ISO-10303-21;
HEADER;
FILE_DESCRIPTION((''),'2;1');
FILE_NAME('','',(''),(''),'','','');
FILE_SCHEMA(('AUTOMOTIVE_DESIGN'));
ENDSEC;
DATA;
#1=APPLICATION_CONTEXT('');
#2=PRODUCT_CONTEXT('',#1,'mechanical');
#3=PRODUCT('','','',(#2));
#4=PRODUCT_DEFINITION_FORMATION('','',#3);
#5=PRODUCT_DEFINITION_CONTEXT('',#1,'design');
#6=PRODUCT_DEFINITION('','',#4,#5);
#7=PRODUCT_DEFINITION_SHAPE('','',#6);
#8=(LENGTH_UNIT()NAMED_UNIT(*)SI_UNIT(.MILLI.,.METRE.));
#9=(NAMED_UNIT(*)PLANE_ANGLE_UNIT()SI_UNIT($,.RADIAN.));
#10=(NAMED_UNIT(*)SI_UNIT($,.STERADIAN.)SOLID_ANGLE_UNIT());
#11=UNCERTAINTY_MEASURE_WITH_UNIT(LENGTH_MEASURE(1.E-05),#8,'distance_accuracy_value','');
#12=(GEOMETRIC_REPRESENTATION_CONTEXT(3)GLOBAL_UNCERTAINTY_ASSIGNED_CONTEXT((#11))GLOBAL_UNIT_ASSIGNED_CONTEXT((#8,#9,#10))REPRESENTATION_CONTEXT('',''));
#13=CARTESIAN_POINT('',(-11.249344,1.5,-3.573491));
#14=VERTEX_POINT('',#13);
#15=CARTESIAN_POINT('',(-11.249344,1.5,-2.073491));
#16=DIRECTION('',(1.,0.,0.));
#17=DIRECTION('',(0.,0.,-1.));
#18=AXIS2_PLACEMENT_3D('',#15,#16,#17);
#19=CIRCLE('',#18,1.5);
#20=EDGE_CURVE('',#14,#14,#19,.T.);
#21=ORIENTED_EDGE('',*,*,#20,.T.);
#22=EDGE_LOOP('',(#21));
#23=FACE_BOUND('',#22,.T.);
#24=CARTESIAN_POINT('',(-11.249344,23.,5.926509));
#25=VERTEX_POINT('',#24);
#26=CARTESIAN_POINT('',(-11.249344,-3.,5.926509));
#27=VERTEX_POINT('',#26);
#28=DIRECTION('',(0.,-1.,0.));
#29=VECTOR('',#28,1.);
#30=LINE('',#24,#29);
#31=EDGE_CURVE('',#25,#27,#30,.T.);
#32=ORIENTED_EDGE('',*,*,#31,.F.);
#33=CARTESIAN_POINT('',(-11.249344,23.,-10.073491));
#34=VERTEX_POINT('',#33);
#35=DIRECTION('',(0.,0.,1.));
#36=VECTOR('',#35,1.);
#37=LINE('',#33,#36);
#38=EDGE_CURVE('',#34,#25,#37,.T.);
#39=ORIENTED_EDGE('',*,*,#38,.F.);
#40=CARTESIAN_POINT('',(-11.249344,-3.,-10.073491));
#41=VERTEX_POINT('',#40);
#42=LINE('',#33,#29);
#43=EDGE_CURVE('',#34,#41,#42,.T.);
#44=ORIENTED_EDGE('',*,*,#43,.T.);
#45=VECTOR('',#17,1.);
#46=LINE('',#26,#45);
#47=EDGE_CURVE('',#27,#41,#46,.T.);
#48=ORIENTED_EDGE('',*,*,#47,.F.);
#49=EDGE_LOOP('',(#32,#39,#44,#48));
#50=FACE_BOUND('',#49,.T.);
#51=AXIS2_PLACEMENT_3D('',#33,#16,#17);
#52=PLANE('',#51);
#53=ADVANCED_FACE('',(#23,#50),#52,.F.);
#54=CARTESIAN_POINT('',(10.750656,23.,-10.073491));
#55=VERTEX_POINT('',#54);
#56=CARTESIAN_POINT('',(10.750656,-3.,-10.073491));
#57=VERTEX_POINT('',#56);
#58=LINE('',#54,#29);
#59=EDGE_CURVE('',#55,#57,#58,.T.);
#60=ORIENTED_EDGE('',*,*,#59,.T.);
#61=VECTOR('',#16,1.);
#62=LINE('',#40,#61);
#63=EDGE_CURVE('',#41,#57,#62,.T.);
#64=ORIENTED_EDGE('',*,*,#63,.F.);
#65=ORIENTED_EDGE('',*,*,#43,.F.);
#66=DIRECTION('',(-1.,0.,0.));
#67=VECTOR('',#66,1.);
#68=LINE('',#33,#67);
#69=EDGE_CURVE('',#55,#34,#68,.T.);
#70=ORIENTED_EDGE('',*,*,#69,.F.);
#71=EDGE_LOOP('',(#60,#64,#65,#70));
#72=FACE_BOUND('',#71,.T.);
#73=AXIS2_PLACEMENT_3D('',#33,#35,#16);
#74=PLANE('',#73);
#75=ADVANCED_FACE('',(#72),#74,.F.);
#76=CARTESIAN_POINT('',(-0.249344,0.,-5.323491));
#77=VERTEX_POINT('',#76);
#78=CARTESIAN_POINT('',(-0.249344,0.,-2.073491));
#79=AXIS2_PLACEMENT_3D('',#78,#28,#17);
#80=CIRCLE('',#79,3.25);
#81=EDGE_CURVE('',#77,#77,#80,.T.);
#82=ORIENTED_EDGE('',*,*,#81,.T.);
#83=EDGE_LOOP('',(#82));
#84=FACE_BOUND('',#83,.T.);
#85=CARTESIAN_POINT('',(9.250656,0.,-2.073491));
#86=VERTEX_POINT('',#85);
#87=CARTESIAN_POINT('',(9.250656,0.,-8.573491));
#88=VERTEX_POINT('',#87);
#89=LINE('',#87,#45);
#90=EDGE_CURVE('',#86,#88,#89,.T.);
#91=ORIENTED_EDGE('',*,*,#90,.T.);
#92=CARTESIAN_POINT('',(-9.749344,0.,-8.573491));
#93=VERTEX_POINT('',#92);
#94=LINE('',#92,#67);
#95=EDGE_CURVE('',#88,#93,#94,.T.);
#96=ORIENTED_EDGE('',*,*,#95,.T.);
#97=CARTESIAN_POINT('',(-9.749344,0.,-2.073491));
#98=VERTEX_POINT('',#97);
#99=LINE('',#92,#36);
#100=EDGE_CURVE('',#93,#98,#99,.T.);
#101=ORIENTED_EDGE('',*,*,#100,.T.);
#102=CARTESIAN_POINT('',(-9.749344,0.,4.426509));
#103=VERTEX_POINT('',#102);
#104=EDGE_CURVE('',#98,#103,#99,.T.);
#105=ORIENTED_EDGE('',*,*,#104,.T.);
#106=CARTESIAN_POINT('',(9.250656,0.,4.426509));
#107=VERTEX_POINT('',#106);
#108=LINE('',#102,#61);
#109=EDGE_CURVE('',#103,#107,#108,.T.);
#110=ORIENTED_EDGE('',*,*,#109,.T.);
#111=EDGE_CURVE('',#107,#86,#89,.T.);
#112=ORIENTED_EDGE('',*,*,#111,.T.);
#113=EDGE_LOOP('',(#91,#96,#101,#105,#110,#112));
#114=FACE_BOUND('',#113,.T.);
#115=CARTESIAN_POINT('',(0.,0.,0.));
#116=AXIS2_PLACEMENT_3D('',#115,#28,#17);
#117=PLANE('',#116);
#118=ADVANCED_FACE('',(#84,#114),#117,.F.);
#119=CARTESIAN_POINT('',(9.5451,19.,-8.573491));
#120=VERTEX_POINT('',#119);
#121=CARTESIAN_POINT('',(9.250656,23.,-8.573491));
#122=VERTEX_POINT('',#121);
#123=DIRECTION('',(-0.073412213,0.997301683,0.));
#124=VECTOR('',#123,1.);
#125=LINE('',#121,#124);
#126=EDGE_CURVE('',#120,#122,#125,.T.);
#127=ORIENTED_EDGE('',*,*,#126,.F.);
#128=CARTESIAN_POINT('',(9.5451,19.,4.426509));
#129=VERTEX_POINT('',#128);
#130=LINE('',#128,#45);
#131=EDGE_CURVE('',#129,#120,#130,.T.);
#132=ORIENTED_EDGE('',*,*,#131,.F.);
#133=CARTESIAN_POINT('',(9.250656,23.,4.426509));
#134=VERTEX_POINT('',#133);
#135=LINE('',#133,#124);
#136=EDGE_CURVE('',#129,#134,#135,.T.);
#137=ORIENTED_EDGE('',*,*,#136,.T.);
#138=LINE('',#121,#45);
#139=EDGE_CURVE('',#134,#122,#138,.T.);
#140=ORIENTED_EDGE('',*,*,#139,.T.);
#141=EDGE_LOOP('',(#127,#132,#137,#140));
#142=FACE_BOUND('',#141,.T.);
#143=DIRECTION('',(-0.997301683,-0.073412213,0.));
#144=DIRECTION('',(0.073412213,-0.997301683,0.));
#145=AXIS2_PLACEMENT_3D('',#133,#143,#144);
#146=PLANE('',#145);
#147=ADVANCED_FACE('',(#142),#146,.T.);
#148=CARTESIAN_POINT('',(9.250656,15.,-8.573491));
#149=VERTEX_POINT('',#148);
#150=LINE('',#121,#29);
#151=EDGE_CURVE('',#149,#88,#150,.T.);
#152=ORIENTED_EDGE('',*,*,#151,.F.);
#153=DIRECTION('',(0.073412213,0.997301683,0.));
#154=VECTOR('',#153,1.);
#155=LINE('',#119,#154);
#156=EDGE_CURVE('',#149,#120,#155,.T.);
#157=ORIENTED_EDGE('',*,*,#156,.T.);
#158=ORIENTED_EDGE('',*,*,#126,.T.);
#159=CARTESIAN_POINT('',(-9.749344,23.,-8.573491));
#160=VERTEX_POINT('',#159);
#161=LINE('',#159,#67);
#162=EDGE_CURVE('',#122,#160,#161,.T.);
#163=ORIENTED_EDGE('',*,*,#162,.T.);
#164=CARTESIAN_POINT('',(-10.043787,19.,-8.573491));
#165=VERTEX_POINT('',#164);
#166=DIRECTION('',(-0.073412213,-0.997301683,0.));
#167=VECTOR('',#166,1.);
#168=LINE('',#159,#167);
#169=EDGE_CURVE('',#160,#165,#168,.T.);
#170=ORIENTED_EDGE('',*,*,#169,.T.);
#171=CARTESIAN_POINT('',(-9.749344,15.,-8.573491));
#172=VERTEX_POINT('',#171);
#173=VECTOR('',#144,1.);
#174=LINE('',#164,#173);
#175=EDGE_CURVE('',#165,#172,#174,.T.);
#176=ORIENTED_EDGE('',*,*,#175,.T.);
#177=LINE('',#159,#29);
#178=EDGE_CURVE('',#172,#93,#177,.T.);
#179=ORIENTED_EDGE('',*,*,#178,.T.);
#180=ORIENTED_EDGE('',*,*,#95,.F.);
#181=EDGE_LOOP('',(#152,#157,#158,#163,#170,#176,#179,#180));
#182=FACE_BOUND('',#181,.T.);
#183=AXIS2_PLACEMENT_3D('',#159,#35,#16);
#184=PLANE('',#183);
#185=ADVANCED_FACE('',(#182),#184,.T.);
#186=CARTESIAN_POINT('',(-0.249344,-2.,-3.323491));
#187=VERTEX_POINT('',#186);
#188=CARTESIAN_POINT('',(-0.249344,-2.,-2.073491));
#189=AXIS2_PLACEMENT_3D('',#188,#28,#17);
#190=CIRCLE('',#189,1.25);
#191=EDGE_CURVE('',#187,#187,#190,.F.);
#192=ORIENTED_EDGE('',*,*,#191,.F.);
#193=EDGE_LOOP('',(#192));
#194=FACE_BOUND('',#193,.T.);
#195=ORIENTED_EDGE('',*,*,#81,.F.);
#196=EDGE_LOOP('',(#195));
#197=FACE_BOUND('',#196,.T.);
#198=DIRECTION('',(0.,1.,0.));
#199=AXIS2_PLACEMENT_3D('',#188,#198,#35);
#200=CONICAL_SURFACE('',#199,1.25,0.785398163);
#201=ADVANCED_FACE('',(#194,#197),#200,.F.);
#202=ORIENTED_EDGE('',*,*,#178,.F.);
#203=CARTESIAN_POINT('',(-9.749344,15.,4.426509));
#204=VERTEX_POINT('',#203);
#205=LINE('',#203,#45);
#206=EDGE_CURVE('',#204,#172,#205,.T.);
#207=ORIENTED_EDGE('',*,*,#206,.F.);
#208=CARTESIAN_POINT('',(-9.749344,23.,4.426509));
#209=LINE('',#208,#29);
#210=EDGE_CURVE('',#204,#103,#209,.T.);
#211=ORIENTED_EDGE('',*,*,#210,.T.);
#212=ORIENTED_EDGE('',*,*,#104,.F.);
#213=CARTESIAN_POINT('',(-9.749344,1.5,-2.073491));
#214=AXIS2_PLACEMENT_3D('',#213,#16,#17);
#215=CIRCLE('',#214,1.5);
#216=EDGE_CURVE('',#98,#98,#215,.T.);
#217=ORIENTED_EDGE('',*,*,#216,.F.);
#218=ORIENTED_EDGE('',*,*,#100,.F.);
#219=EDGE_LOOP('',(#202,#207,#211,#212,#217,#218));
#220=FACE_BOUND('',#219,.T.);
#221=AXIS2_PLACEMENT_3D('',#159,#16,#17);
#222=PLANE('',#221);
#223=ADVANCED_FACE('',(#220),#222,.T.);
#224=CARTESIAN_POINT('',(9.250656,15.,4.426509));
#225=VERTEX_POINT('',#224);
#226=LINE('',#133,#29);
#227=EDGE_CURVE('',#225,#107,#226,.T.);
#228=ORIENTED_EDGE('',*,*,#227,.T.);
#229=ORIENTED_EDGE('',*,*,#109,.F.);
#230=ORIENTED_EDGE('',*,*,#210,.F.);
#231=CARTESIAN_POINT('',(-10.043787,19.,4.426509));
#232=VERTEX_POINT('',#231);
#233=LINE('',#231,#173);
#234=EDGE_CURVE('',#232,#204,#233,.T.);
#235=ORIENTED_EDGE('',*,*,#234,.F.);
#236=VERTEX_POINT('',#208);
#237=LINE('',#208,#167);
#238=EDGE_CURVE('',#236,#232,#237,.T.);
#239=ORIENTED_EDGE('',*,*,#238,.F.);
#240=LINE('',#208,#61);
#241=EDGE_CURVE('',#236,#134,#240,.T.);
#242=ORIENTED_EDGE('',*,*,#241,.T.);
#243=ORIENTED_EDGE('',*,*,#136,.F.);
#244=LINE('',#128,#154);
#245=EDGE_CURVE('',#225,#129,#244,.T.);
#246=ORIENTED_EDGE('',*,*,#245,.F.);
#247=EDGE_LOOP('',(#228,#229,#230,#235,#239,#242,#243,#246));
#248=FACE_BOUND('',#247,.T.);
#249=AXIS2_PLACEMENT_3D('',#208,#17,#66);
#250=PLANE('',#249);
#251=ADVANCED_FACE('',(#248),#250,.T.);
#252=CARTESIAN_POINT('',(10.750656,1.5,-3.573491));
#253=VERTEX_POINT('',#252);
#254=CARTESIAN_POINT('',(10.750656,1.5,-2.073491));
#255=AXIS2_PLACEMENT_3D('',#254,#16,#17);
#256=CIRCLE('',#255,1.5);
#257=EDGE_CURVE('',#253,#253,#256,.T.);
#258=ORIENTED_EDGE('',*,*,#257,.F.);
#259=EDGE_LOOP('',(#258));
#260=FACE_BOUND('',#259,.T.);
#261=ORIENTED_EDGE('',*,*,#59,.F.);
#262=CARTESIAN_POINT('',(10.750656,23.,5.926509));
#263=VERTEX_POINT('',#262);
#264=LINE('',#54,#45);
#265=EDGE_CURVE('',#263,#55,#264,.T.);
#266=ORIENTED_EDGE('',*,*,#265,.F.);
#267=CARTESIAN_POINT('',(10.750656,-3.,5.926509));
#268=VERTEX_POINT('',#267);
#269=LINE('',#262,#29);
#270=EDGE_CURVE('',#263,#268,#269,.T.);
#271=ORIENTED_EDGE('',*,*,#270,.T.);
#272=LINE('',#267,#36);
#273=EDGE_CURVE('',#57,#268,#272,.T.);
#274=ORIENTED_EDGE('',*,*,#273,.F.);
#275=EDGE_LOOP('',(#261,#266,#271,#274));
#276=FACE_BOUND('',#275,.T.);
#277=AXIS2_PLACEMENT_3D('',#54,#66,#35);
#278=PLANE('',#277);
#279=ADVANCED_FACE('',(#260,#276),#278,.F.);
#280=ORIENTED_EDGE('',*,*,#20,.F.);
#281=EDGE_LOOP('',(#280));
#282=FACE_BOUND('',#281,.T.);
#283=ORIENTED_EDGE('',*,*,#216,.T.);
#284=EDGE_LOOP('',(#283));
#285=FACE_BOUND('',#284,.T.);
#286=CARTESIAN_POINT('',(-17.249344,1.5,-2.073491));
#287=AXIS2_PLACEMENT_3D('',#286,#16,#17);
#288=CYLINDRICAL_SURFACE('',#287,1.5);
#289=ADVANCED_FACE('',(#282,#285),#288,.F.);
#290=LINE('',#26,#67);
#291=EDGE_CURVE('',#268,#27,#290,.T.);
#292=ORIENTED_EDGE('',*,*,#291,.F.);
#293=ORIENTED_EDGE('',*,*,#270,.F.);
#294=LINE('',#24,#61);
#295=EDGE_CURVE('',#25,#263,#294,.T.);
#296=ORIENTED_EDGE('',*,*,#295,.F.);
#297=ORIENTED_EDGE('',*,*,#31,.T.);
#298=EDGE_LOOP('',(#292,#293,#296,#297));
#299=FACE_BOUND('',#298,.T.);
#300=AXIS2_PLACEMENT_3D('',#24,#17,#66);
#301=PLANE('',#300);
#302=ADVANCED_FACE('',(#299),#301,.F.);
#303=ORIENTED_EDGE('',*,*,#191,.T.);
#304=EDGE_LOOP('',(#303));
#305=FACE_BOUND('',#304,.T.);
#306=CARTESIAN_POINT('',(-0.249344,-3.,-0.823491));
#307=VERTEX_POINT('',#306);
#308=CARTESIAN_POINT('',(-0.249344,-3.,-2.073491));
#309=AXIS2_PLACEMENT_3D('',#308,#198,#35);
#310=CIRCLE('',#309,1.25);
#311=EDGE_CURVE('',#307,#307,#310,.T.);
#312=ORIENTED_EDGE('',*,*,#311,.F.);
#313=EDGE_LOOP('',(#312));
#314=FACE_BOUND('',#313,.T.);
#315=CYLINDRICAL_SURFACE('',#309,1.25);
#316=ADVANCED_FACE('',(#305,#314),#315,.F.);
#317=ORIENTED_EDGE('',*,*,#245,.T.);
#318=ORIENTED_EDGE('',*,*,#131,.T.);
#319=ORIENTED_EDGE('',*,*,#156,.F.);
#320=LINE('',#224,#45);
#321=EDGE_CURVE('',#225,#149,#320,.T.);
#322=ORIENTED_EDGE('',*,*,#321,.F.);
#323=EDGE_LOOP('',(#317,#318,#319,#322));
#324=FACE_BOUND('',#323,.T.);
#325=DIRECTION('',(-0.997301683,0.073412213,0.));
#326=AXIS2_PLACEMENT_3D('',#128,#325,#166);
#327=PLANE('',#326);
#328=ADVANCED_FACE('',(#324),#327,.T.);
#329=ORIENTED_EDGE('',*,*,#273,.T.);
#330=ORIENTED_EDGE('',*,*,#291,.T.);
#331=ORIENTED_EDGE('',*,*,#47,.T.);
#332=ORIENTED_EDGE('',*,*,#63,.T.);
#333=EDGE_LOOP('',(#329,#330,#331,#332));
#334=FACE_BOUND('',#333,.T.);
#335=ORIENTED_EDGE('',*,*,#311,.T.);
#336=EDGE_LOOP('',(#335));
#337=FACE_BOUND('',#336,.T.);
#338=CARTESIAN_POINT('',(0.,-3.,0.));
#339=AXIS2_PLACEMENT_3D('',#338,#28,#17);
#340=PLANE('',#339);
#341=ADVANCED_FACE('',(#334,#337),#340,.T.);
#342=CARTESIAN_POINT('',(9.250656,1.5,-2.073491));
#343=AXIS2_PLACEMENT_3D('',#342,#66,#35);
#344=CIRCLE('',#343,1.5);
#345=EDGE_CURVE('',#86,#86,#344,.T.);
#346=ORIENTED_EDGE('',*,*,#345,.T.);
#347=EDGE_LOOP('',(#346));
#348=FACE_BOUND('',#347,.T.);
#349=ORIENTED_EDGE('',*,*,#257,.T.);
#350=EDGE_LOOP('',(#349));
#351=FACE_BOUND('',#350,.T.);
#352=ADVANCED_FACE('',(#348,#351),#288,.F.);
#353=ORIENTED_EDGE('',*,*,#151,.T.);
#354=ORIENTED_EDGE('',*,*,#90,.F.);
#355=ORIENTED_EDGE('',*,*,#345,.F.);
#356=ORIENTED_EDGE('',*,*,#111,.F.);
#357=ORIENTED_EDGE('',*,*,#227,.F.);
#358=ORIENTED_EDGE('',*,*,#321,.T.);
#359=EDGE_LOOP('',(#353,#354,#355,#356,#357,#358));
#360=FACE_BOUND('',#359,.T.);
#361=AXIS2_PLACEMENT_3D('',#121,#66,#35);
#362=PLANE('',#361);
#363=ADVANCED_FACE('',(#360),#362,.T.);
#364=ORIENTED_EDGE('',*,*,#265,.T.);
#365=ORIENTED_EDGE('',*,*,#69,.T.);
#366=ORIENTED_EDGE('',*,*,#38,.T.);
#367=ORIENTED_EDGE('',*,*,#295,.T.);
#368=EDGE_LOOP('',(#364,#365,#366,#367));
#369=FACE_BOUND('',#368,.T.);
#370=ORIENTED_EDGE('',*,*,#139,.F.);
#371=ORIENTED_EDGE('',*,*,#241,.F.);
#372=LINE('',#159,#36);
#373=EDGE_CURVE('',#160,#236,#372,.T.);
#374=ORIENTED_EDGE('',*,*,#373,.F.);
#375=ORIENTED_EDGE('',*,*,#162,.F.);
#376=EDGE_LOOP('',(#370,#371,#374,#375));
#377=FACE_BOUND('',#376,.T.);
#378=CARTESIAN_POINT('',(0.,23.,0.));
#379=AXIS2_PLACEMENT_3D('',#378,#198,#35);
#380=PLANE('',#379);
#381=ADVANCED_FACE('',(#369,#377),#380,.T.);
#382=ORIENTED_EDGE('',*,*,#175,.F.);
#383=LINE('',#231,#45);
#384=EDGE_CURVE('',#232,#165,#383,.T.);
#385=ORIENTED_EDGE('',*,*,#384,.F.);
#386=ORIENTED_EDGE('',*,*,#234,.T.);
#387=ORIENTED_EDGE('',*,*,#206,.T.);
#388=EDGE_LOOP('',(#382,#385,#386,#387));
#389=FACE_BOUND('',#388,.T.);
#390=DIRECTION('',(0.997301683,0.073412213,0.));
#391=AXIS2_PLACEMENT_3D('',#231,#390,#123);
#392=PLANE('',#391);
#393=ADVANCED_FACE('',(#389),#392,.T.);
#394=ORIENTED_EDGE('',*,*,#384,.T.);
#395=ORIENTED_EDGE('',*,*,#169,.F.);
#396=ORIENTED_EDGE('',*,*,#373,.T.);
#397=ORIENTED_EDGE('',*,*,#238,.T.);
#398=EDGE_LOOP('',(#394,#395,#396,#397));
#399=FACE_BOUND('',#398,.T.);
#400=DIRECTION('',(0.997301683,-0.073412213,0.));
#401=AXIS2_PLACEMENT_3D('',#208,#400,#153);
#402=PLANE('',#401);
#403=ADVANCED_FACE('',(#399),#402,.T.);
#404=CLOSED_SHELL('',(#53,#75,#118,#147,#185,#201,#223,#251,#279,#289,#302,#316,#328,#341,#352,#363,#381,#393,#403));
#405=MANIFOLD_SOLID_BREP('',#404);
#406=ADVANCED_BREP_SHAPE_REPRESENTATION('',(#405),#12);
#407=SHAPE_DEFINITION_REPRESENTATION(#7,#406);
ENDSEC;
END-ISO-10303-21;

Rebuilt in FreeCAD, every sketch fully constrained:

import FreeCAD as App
import Part
import Sketcher
from FreeCAD import Vector
Q = App.Units.Quantity


def edges_at(feature, points):
    """Names of the edges that pass closest to the given points."""
    edges = feature.Shape.Edges
    near = lambda p: min(range(len(edges)), key=lambda i: edges[i].distToShape(Part.Vertex(*p))[0])
    return sorted({f"Edge{near(p) + 1}" for p in points})

doc = App.newDocument("Part")
body = doc.addObject("PartDesign::Body", "Body")

# Sketch on XZ plane
sketch1 = body.newObject("Sketcher::SketchObject", "Sketch")
sketch1.AttachmentSupport = (doc.getObject("XZ_Plane"), [""])
sketch1.MapMode = "FlatFace"
sketch1.addGeometry([
    Part.LineSegment(Vector(-11, -10, 0), Vector(-11, 6, 0)),  # 0
    Part.LineSegment(Vector(-11, 6, 0), Vector(11, 6, 0)),  # 1
    Part.LineSegment(Vector(11, 6, 0), Vector(11, -10, 0)),  # 2
    Part.LineSegment(Vector(11, -10, 0), Vector(-11, -10, 0)),  # 3
    Part.LineSegment(Vector(9, 4, 0), Vector(-10, 4, 0)),  # 4
    Part.LineSegment(Vector(-10, 4, 0), Vector(-10, -9, 0)),  # 5
    Part.LineSegment(Vector(-10, -9, 0), Vector(9, -9, 0)),  # 6
    Part.LineSegment(Vector(9, -9, 0), Vector(9, 4, 0)),  # 7
], False)
sketch1.addConstraint([
    Sketcher.Constraint("Coincident", 0, 2, 1, 1),
    Sketcher.Constraint("Coincident", 1, 2, 2, 1),
    Sketcher.Constraint("Coincident", 2, 2, 3, 1),
    Sketcher.Constraint("Coincident", 3, 2, 0, 1),
    Sketcher.Constraint("Coincident", 4, 2, 5, 1),
    Sketcher.Constraint("Coincident", 5, 2, 6, 1),
    Sketcher.Constraint("Coincident", 6, 2, 7, 1),
    Sketcher.Constraint("Coincident", 7, 2, 4, 1),
    Sketcher.Constraint("Vertical", 0),
    Sketcher.Constraint("Horizontal", 1),
    Sketcher.Constraint("Vertical", 2),
    Sketcher.Constraint("Horizontal", 3),
    Sketcher.Constraint("Horizontal", 4),
    Sketcher.Constraint("Vertical", 5),
    Sketcher.Constraint("Horizontal", 6),
    Sketcher.Constraint("Vertical", 7),
    Sketcher.Constraint("DistanceX", 1, 1, 1, 2, Q("22 mm")),
    Sketcher.Constraint("DistanceX", 4, 2, 4, 1, Q("19 mm")),
    Sketcher.Constraint("DistanceY", 0, 1, 0, 2, Q("16 mm")),
    Sketcher.Constraint("DistanceY", 5, 2, 5, 1, Q("13 mm")),
    Sketcher.Constraint("DistanceX", 0, 2, 4, 2, Q("1.5 mm")),
    Sketcher.Constraint("DistanceY", 4, 2, 0, 2, Q("1.5 mm")),
    Sketcher.Constraint("DistanceY", -1, 1, 0, 2, Q("5.926509 mm")),
    Sketcher.Constraint("DistanceX", 0, 2, -1, 1, Q("11.249344 mm")),
])
pad1 = body.newObject("PartDesign::Pad", "Pad")
pad1.Profile = sketch1
pad1.Length = 23
pad1.Reversed = True

# Sketch on XZ plane
sketch2 = body.newObject("Sketcher::SketchObject", "Sketch001")
sketch2.AttachmentSupport = (doc.getObject("XZ_Plane"), [""])
sketch2.MapMode = "FlatFace"
sketch2.addGeometry([
    Part.LineSegment(Vector(-11, 6, 0), Vector(-11, -10, 0)),
    Part.LineSegment(Vector(-11, -10, 0), Vector(11, -10, 0)),
    Part.LineSegment(Vector(11, -10, 0), Vector(11, 6, 0)),
    Part.LineSegment(Vector(11, 6, 0), Vector(-11, 6, 0)),
], False)
sketch2.addConstraint([
    Sketcher.Constraint("Coincident", 0, 2, 1, 1),
    Sketcher.Constraint("Coincident", 1, 2, 2, 1),
    Sketcher.Constraint("Coincident", 2, 2, 3, 1),
    Sketcher.Constraint("Coincident", 3, 2, 0, 1),
    Sketcher.Constraint("Vertical", 0),
    Sketcher.Constraint("Horizontal", 1),
    Sketcher.Constraint("Vertical", 2),
    Sketcher.Constraint("Horizontal", 3),
    Sketcher.Constraint("DistanceX", 1, 1, 1, 2, Q("22 mm")),
    Sketcher.Constraint("DistanceY", 0, 2, 0, 1, Q("16 mm")),
    Sketcher.Constraint("DistanceY", 0, 2, -1, 1, Q("10.073491 mm")),
    Sketcher.Constraint("DistanceX", 0, 2, -1, 1, Q("11.249344 mm")),
])
pad2 = body.newObject("PartDesign::Pad", "Pad001")
pad2.Profile = sketch2
pad2.Length = 3

# Sketch on XZ plane
sketch3 = body.newObject("Sketcher::SketchObject", "Sketch002")
sketch3.AttachmentSupport = (doc.getObject("XZ_Plane"), [""])
sketch3.MapMode = "FlatFace"
sketch3.addGeometry(Part.Circle(Vector(-0.2, -2.1, 0), Vector(0, 0, 1), 1.2), False)
sketch3.addConstraint([
    Sketcher.Constraint("Diameter", 0, Q("2.5 mm")),
    Sketcher.Constraint("DistanceY", 0, 3, -1, 1, Q("2.073491 mm")),
    Sketcher.Constraint("DistanceX", 0, 3, -1, 1, Q("0.249344 mm")),
])
pocket1 = body.newObject("PartDesign::Pocket", "Pocket")
pocket1.Profile = sketch3
pocket1.Length = 3
pocket1.Reversed = True
doc.recompute()

chamfer = body.newObject("PartDesign::Chamfer", "Chamfer")
chamfer.Base = (pocket1, edges_at(pocket1, [(-1.499, 0, -2.073)]))
chamfer.Size = 2

# Sketch on YZ plane
sketch4 = body.newObject("Sketcher::SketchObject", "Sketch003")
sketch4.AttachmentSupport = (doc.getObject("YZ_Plane"), [""])
sketch4.MapMode = "FlatFace"
sketch4.AttachmentOffset = App.Placement(Vector(0, 0, 10.750656), App.Rotation())
sketch4.addGeometry(Part.Circle(Vector(1.5, -2.1, 0), Vector(0, 0, 1), 1.5), False)
sketch4.addConstraint([
    Sketcher.Constraint("Diameter", 0, Q("3 mm")),
    Sketcher.Constraint("DistanceX", -1, 1, 0, 3, Q("1.5 mm")),
    Sketcher.Constraint("DistanceY", 0, 3, -1, 1, Q("2.073491 mm")),
])
pocket2 = body.newObject("PartDesign::Pocket", "Pocket001")
pocket2.Profile = sketch4
pocket2.Length = 28

# Sketch on XY plane
sketch5 = body.newObject("Sketcher::SketchObject", "Sketch004")
sketch5.AttachmentSupport = (doc.getObject("XY_Plane"), [""])
sketch5.MapMode = "FlatFace"
sketch5.AttachmentOffset = App.Placement(Vector(0, 0, -8.573491), App.Rotation())
sketch5.addGeometry([
    Part.LineSegment(Vector(9.5, 19, 0), Vector(9.3, 23, 0)),  # 0
    Part.LineSegment(Vector(9.3, 23, 0), Vector(9.3, 15, 0)),  # 1
    Part.LineSegment(Vector(9.3, 15, 0), Vector(9.5, 19, 0)),  # 2
    Part.LineSegment(Vector(-10, 19, 0), Vector(-9.7, 15, 0)),  # 3
    Part.LineSegment(Vector(-9.7, 15, 0), Vector(-9.7, 23, 0)),  # 4
    Part.LineSegment(Vector(-9.7, 23, 0), Vector(-10, 19, 0)),  # 5
], False)
sketch5.addConstraint([
    Sketcher.Constraint("Coincident", 0, 2, 1, 1),
    Sketcher.Constraint("Coincident", 1, 2, 2, 1),
    Sketcher.Constraint("Coincident", 2, 2, 0, 1),
    Sketcher.Constraint("Coincident", 3, 2, 4, 1),
    Sketcher.Constraint("Coincident", 4, 2, 5, 1),
    Sketcher.Constraint("Coincident", 5, 2, 3, 1),
    Sketcher.Constraint("Vertical", 1),
    Sketcher.Constraint("Vertical", 4),
    Sketcher.Constraint("Parallel", 0, 3),
    Sketcher.Constraint("Parallel", 2, 5),
    Sketcher.Constraint("Horizontal", 1, 2, 3, 2),
    Sketcher.Constraint("Horizontal", 0, 2, 4, 2),
    Sketcher.Constraint("Horizontal", 2, 2, 5, 2),
    Sketcher.Constraint("DistanceY", 1, 2, 1, 1, Q("8 mm")),
    Sketcher.Constraint("DistanceY", -1, 1, 0, 2, Q("23 mm")),
    Sketcher.Constraint("DistanceX", 3, 2, 1, 2, Q("19 mm")),
    Sketcher.Constraint("Angle", 0, Q("94.209997 deg")),
    Sketcher.Constraint("DistanceX", -1, 1, 2, 2, Q("9.5451 mm")),
])
pocket3 = body.newObject("PartDesign::Pocket", "Pocket002")
pocket3.Profile = sketch5
pocket3.Length = 13
pocket3.Reversed = True

doc.recompute()
